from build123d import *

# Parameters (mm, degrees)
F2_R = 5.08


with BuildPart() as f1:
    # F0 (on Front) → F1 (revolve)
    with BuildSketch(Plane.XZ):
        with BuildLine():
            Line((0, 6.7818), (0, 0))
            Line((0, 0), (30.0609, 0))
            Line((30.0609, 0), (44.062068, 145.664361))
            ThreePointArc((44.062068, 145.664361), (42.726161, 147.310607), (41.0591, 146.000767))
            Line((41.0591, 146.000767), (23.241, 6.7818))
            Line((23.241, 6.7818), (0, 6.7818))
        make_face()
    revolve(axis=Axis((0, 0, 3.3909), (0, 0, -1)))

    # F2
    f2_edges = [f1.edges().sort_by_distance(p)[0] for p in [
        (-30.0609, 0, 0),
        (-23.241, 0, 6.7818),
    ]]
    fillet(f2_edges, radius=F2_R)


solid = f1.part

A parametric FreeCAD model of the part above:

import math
import FreeCAD as App
import Part
import Sketcher

V = App.Vector
Q = App.Units.Quantity


def edges_at(feature, points):
    """Names of the edges that pass closest to the given points."""
    edges = feature.Shape.Edges
    near = lambda p: min(range(len(edges)), key=lambda i: edges[i].distToShape(Part.Vertex(*p))[0])
    return sorted({f"Edge{near(p) + 1}" for p in points})

doc = App.newDocument("Part")
body = doc.addObject("PartDesign::Body", "Body")

# Sketch on XZ plane
sketch1 = doc.addObject("Sketcher::SketchObject", "Sketch")
body.addObject(sketch1)
sketch1.AttachmentSupport = (doc.XZ_Plane, [""])
sketch1.MapMode = "FlatFace"
sketch1.addGeometry(Part.LineSegment(V(0, 6.8, 0), V(0, 0, 0)), False)
sketch1.addGeometry(Part.LineSegment(V(0, 0, 0), V(30.1, 0, 0)), False)
sketch1.addGeometry(Part.LineSegment(V(30.1, 0, 0), V(44.1, 145.7, 0)), False)
sketch1.addGeometry(Part.ArcOfCircle(Part.Circle(V(42.6, 145.8, 0), V(0, 0, 1), 1.5), math.radians(-5), math.radians(173)), False)
sketch1.addGeometry(Part.LineSegment(V(41.1, 146, 0), V(23.2, 6.8, 0)), False)
sketch1.addGeometry(Part.LineSegment(V(23.2, 6.8, 0), V(0, 6.8, 0)), False)
sketch1.addConstraint(Sketcher.Constraint("Coincident", 0, 2, 1, 1))
sketch1.addConstraint(Sketcher.Constraint("Coincident", 1, 2, 2, 1))
sketch1.addConstraint(Sketcher.Constraint("Tangent", 2, 2, 3, 1))
sketch1.addConstraint(Sketcher.Constraint("Tangent", 3, 2, 4, 1))
sketch1.addConstraint(Sketcher.Constraint("Coincident", 4, 2, 5, 1))
sketch1.addConstraint(Sketcher.Constraint("Coincident", 5, 2, 0, 1))
sketch1.addConstraint(Sketcher.Constraint("Vertical", 0))
sketch1.addConstraint(Sketcher.Constraint("Horizontal", 1))
sketch1.addConstraint(Sketcher.Constraint("Horizontal", 5))
sketch1.addConstraint(Sketcher.Constraint("Coincident", 0, 2, -1, 1))
sketch1.addConstraint(Sketcher.Constraint("DistanceX", 5, 2, 5, 1, Q("0.915 in")))
sketch1.addConstraint(Sketcher.Constraint("DistanceY", 0, 2, 0, 1, Q("0.267 in")))
sketch1.addConstraint(Sketcher.Constraint("DistanceX", 1, 1, 1, 2, Q("1.1835 in")))
sketch1.addConstraint(Sketcher.Constraint("DistanceX", 1, 2, 3, 2, Q("0.433 in")))
sketch1.addConstraint(Sketcher.Constraint("Radius", 3, 1.511063))
sketch1.addConstraint(Sketcher.Constraint("Distance", 4, 140.35457))
revolution = doc.addObject("PartDesign::Revolution", "Revolution")
body.addObject(revolution)
revolution.Profile = sketch1
revolution.ReferenceAxis = (sketch1, ["V_Axis"])
revolution.Angle = 360
doc.recompute()

fillet = doc.addObject("PartDesign::Fillet", "Fillet")
body.addObject(fillet)
fillet.Base = (revolution, edges_at(revolution, [(-30.061, 0, 0), (-23.241, 0, 6.782)]))
fillet.Radius = Q("0.2 in")

doc.recompute()
